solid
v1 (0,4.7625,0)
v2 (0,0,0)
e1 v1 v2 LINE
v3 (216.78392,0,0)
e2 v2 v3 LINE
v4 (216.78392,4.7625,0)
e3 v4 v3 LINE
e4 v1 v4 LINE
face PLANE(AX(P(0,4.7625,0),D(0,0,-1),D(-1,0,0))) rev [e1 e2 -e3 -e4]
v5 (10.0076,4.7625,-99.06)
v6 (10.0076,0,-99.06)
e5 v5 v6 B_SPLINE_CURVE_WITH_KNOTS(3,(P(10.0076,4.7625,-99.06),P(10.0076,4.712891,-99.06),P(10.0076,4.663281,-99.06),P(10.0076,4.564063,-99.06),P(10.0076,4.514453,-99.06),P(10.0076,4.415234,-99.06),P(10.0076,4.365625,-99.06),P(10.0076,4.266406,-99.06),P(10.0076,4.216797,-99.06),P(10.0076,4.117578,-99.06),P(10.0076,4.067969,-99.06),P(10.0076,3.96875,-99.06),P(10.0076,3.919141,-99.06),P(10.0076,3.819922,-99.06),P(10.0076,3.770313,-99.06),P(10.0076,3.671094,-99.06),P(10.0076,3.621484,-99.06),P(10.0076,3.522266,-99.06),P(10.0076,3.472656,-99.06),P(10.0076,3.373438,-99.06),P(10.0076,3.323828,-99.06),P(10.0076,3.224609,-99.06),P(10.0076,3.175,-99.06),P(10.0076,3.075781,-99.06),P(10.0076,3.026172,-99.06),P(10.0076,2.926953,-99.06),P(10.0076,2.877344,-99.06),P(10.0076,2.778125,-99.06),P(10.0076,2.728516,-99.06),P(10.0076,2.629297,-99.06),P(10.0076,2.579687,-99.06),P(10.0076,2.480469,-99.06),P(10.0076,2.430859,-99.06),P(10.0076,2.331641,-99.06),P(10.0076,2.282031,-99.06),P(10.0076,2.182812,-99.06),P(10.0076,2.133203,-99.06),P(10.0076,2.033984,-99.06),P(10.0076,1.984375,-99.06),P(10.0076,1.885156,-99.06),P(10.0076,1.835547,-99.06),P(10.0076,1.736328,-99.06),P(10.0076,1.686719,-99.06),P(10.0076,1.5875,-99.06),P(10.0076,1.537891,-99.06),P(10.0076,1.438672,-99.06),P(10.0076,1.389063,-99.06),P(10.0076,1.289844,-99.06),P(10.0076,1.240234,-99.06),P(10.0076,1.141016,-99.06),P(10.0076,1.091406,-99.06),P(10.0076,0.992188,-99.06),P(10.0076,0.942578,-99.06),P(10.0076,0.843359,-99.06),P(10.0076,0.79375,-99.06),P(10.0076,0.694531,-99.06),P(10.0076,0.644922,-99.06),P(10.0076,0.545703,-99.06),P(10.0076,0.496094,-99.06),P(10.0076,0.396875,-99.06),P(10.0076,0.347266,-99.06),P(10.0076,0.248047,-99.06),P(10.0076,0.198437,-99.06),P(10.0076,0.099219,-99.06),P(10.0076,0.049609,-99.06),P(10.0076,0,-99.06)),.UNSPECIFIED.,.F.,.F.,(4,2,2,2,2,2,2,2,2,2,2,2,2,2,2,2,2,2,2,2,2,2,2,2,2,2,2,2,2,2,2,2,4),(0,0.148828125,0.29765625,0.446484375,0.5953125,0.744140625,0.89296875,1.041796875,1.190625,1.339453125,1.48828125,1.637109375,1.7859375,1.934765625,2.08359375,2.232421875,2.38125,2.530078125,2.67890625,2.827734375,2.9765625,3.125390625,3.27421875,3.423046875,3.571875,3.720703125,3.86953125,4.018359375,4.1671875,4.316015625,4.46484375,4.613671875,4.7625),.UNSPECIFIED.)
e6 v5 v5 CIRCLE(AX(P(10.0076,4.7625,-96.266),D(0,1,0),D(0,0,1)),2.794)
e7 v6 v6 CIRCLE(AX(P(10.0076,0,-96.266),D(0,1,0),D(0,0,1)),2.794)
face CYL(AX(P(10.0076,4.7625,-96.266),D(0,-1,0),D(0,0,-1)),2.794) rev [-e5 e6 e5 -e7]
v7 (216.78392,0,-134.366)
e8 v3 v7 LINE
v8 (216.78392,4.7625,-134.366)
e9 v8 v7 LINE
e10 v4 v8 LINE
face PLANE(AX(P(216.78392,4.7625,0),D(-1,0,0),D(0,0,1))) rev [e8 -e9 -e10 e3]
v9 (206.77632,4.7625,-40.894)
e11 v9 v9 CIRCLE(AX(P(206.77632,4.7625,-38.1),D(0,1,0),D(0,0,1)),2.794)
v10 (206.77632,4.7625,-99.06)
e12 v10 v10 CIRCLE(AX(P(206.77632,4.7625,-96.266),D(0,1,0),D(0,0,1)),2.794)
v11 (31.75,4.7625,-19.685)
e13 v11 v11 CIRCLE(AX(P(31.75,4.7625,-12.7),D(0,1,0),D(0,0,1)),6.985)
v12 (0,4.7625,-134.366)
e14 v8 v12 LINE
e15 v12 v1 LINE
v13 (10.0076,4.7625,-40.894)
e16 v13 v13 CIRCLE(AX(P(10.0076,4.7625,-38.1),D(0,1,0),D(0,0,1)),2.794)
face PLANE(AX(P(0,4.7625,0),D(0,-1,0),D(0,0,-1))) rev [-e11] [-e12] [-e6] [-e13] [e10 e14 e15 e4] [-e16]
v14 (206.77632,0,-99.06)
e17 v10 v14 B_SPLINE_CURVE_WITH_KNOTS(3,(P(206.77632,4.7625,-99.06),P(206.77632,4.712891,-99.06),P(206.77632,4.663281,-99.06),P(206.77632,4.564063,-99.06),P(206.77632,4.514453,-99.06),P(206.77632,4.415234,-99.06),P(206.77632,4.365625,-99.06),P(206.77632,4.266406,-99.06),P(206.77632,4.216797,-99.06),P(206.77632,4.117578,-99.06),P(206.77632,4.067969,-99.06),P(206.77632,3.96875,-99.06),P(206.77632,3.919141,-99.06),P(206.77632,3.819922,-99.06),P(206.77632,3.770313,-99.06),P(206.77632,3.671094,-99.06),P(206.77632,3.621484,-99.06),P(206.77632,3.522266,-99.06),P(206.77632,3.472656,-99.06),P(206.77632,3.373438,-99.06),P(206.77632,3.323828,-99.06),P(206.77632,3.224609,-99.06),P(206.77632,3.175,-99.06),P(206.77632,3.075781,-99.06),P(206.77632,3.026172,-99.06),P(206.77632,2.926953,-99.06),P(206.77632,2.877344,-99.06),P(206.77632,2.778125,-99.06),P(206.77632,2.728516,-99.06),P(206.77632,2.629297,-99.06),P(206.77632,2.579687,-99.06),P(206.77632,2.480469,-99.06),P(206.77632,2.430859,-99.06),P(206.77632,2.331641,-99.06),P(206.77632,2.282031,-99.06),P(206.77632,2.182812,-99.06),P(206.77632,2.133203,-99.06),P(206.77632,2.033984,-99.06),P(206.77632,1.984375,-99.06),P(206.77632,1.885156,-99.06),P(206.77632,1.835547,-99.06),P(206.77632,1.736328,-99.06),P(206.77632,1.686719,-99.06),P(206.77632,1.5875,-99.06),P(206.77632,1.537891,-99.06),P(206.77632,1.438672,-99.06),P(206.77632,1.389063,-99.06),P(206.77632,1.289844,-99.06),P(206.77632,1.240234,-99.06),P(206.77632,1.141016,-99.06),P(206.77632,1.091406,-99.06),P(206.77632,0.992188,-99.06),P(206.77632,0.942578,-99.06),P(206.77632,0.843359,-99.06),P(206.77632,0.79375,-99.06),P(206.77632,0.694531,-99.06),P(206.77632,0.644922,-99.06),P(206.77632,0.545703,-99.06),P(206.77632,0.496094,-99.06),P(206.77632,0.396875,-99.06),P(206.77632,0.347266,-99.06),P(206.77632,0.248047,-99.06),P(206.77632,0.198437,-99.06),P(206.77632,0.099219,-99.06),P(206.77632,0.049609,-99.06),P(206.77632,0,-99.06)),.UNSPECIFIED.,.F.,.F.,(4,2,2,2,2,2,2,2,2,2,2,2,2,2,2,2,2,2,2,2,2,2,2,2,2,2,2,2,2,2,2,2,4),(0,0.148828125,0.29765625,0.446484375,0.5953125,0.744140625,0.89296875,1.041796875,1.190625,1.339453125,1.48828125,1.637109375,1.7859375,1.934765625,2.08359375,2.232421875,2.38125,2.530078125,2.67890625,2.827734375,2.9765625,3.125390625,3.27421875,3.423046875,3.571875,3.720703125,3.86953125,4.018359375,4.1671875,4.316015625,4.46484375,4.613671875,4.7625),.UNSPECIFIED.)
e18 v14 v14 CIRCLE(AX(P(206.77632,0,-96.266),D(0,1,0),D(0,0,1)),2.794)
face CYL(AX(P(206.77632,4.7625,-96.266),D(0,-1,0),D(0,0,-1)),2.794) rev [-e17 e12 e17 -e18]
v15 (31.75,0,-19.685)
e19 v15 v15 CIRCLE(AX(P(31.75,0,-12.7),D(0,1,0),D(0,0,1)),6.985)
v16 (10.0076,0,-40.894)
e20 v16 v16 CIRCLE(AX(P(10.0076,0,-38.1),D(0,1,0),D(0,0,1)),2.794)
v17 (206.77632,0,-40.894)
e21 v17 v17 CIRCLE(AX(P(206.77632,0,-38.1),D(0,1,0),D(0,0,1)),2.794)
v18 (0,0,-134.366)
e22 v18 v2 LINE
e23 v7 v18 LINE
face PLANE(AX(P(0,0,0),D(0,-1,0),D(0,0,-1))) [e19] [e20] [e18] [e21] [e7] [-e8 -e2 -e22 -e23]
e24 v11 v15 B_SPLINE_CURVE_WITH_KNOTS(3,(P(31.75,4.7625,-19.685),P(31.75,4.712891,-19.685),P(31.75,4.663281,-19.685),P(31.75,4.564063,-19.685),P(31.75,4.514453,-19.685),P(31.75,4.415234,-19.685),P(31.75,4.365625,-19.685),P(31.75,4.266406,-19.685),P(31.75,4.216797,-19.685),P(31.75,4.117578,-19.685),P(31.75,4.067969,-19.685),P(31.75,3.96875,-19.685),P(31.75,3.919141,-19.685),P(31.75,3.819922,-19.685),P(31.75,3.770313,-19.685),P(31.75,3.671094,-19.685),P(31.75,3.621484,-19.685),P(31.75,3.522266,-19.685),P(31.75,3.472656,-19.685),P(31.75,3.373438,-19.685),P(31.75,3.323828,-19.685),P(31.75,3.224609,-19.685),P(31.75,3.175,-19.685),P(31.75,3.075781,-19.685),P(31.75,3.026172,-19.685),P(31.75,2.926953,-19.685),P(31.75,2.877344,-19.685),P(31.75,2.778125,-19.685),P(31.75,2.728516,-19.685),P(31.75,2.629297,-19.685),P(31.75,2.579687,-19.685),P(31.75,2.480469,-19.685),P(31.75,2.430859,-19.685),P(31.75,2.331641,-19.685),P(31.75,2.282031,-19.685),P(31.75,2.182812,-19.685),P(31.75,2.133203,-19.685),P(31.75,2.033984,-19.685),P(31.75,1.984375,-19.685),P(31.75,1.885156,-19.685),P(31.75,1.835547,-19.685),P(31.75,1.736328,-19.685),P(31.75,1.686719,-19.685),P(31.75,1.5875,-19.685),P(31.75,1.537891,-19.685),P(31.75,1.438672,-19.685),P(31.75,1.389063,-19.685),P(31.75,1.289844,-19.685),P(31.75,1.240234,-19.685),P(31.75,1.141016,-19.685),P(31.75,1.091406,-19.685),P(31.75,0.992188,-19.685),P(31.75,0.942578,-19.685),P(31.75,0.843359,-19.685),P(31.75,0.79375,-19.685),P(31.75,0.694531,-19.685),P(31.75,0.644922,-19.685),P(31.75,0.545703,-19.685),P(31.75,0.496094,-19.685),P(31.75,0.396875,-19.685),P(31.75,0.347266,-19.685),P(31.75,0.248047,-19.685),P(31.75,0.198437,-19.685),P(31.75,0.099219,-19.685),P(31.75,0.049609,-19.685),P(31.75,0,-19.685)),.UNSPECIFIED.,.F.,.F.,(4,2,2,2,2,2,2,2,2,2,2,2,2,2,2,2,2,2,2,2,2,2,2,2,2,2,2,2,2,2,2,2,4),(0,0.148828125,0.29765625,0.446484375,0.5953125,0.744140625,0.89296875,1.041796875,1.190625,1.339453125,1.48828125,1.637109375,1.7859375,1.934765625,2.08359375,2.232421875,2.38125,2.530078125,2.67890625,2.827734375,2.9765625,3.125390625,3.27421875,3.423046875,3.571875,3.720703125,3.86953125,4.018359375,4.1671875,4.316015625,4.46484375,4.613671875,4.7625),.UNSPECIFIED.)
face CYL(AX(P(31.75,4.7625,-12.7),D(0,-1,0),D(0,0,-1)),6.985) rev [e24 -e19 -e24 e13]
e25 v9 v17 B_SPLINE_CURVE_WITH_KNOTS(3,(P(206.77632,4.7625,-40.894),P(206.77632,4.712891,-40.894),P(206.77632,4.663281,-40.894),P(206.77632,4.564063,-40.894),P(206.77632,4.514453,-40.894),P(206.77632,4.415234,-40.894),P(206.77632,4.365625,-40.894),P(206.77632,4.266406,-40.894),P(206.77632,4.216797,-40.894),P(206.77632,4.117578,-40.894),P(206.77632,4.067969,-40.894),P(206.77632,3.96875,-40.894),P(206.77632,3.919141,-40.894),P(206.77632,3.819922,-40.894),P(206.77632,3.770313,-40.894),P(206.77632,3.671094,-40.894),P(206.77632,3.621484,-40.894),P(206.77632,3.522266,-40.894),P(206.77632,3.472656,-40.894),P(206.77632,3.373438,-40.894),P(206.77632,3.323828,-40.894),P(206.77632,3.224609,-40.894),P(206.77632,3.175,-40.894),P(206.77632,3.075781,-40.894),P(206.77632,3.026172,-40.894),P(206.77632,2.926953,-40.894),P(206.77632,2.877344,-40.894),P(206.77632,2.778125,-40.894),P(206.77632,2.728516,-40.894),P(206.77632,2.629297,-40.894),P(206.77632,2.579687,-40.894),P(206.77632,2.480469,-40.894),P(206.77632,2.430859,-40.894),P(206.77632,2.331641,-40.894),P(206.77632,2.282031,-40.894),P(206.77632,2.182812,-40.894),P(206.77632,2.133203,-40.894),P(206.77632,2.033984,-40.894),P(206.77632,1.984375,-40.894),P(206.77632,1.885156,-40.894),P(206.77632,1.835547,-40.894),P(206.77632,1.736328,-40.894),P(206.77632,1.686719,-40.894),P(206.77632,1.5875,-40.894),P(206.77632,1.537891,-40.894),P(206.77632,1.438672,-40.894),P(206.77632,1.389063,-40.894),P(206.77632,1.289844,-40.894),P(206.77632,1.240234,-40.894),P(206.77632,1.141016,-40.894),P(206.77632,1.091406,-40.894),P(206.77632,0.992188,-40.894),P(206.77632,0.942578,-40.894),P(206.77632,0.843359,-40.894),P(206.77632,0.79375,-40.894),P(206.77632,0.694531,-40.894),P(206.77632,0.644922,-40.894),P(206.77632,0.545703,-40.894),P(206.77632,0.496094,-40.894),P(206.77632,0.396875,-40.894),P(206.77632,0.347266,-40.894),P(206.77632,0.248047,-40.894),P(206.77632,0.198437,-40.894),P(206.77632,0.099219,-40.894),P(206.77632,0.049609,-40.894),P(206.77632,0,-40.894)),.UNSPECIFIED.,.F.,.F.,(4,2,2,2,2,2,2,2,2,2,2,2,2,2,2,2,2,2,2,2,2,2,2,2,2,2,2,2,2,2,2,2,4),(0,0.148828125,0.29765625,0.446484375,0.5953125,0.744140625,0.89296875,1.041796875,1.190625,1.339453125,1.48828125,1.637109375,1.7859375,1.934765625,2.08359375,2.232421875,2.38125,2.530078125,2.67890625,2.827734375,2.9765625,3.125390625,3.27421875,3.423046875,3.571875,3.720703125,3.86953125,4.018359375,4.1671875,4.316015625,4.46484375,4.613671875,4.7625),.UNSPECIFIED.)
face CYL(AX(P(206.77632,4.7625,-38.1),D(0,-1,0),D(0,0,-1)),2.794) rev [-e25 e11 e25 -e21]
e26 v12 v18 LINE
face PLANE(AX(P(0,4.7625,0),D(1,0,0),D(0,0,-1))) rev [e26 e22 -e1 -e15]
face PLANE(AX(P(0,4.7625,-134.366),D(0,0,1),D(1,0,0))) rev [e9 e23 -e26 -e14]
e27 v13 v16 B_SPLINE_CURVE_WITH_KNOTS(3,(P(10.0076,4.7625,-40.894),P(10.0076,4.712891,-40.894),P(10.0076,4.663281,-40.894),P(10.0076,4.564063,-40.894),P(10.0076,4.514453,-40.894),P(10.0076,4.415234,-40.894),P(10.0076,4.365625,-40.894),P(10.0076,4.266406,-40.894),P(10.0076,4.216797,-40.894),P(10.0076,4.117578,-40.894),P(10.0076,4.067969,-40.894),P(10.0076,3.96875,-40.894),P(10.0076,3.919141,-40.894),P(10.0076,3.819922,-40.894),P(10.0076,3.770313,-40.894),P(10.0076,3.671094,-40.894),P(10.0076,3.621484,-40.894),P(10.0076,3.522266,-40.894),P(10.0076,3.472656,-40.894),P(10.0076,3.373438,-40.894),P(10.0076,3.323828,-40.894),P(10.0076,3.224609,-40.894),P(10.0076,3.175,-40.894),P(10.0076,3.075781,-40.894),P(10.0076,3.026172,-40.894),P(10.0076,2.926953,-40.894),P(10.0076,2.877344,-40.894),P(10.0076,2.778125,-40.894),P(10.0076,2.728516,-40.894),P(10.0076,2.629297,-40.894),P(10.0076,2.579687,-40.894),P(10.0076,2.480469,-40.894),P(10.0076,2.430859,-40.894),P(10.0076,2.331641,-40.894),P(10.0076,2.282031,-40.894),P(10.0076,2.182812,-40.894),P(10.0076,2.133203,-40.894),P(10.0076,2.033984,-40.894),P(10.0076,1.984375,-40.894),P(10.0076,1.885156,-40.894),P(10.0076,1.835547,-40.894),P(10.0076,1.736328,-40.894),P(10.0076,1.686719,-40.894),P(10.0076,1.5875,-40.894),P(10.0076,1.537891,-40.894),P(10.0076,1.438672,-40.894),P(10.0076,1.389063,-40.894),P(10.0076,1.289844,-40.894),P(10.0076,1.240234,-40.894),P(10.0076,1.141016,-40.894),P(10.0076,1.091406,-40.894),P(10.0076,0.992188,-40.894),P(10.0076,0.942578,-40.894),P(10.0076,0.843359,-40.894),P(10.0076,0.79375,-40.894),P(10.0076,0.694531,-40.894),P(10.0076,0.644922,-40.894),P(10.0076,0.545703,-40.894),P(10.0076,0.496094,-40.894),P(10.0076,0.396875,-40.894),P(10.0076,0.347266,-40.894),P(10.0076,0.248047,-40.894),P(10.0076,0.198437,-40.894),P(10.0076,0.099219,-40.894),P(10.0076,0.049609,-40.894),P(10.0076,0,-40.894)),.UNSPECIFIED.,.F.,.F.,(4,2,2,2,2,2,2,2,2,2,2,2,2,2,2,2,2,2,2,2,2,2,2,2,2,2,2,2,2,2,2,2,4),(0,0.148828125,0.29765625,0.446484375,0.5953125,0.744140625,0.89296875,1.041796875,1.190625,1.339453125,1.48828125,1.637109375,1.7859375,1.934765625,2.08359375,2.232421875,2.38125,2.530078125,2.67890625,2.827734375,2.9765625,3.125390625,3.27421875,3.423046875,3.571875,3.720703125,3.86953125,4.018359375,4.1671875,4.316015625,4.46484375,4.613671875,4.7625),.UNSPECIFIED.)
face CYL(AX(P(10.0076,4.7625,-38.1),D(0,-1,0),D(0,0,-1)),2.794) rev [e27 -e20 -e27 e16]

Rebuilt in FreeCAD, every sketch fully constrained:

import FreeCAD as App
import Part
import Sketcher
Q = App.Units.Quantity


def add_polygon(sketch, points):
    """Adds a closed chain of lines whose ends are joined by coincident constraints."""
    first, n = sketch.GeometryCount, len(points)
    for a, b in zip(points, points[1:] + points[:1]):
        sketch.addGeometry(Part.LineSegment(App.Vector(*a, 0), App.Vector(*b, 0)), False)
    for i in range(n):
        sketch.addConstraint(Sketcher.Constraint("Coincident", first + i, 2, first + (i + 1) % n, 1))

doc = App.newDocument("Part")
body = doc.addObject("PartDesign::Body", "Body")

sketch1 = doc.addObject("Sketcher::SketchObject", "Sketch")
body.addObject(sketch1)
sketch1.AttachmentSupport = (doc.XZ_Plane, [""])
sketch1.MapMode = "FlatFace"
add_polygon(sketch1, [(0, -134.4), (0, 0), (216.8, 0), (216.8, -134.4)])
sketch1.addGeometry(Part.Circle(App.Vector(31.8, -12.7, 0), App.Vector(0, 0, 1), 7), False)
sketch1.addGeometry(Part.Circle(App.Vector(10, -38.1, 0), App.Vector(0, 0, 1), 2.8), False)
sketch1.addGeometry(Part.Circle(App.Vector(206.8, -38.1, 0), App.Vector(0, 0, 1), 2.8), False)
sketch1.addGeometry(Part.Circle(App.Vector(10, -96.3, 0), App.Vector(0, 0, 1), 2.8), False)
sketch1.addGeometry(Part.Circle(App.Vector(206.8, -96.3, 0), App.Vector(0, 0, 1), 2.8), False)
sketch1.addConstraint(Sketcher.Constraint("Vertical", 0))
sketch1.addConstraint(Sketcher.Constraint("Horizontal", 1))
sketch1.addConstraint(Sketcher.Constraint("Vertical", 2))
sketch1.addConstraint(Sketcher.Constraint("Horizontal", 3))
sketch1.addConstraint(Sketcher.Constraint("Coincident", 0, 2, -1, 1))
sketch1.addConstraint(Sketcher.Constraint("Equal", 5, 6))
sketch1.addConstraint(Sketcher.Constraint("Equal", 6, 7))
sketch1.addConstraint(Sketcher.Constraint("Equal", 7, 8))
sketch1.addConstraint(Sketcher.Constraint("Horizontal", 5, 3, 6, 3))
sketch1.addConstraint(Sketcher.Constraint("Horizontal", 7, 3, 8, 3))
sketch1.addConstraint(Sketcher.Constraint("Vertical", 5, 3, 7, 3))
sketch1.addConstraint(Sketcher.Constraint("Vertical", 6, 3, 8, 3))
sketch1.addConstraint(Sketcher.Constraint("Diameter", 4, Q("0.55 in")))
sketch1.addConstraint(Sketcher.Constraint("Diameter", 5, Q("0.22 in")))
sketch1.addConstraint(Sketcher.Constraint("DistanceY", 5, 3, 4, 3, Q("1 in")))
sketch1.addConstraint(Sketcher.Constraint("DistanceY", 0, 1, 0, 2, Q("5.29 in")))
sketch1.addConstraint(Sketcher.Constraint("DistanceY", 4, 3, -1, 1, Q("0.5 in")))
sketch1.addConstraint(Sketcher.Constraint("DistanceY", 2, 2, 8, 3, Q("1.5 in")))
sketch1.addConstraint(Sketcher.Constraint("DistanceX", -1, 1, 4, 3, Q("1.25 in")))
sketch1.addConstraint(Sketcher.Constraint("DistanceX", 1, 1, 1, 2, Q("8.5348 in")))
sketch1.addConstraint(Sketcher.Constraint("DistanceX", -1, 1, 5, 3, Q("0.394 in")))
sketch1.addConstraint(Sketcher.Constraint("DistanceX", 6, 3, 1, 2, Q("0.394 in")))
pad1 = doc.addObject("PartDesign::Pad", "Pad")
body.addObject(pad1)
pad1.Profile = sketch1
pad1.Length = Q("0.1875 in")
pad1.Reversed = True

doc.recompute()
